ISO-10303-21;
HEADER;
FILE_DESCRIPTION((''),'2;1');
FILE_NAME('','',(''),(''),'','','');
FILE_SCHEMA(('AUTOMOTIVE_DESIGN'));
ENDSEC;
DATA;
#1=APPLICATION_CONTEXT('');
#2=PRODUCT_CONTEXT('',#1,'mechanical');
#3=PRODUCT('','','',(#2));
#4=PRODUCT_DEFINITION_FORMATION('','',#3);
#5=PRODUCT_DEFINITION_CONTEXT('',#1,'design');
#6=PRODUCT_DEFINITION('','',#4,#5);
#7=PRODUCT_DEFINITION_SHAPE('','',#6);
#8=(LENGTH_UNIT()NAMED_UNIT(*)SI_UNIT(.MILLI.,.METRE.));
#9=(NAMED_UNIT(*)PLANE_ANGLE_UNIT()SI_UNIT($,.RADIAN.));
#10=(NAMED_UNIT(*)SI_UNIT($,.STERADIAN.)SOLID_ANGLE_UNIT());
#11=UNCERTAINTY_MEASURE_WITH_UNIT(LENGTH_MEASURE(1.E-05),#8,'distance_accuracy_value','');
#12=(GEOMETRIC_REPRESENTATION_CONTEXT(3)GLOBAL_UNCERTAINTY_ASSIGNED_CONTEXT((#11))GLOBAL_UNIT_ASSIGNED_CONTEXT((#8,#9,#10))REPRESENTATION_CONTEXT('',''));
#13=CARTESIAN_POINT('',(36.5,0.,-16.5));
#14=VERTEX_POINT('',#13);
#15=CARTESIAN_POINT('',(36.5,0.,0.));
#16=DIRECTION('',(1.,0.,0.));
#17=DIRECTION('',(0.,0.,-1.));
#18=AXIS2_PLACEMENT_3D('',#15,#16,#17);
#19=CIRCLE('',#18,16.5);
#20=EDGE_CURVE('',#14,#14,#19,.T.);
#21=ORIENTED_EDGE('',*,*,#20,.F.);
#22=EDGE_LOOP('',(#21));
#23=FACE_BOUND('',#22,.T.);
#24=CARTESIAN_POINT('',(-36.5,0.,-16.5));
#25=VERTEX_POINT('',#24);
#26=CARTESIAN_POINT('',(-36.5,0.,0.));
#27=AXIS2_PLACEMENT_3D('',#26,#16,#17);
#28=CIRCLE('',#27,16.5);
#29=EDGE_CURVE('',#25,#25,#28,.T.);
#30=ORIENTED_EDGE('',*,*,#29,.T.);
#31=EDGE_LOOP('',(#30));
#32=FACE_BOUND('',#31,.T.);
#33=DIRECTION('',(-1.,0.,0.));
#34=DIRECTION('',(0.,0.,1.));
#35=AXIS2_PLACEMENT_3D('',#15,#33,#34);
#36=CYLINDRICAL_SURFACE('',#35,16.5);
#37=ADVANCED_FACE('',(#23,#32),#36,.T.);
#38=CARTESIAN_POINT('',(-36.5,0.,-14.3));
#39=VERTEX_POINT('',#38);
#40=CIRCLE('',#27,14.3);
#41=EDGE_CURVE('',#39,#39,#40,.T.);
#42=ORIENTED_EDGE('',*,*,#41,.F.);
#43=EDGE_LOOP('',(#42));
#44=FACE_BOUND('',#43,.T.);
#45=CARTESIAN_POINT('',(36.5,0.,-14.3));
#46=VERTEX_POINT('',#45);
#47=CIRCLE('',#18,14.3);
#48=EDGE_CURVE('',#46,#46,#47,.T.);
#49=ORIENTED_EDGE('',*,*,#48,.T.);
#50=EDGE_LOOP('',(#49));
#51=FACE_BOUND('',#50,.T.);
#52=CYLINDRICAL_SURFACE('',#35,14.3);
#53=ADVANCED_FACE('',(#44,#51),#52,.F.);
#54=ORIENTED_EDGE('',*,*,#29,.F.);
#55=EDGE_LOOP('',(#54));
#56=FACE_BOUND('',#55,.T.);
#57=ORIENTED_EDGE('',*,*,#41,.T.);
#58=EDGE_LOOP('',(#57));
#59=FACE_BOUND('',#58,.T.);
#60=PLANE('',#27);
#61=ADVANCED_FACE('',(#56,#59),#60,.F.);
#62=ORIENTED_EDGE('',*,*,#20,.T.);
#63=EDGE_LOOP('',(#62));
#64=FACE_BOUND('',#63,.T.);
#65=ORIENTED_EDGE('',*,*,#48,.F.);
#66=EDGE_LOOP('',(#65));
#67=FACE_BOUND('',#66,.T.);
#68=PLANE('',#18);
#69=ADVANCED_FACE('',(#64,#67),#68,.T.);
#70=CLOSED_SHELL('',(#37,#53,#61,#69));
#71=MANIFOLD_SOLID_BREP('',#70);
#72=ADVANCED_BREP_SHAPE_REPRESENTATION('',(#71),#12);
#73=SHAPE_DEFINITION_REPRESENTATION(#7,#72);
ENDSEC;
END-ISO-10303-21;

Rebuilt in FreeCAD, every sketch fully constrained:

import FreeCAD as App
import Part
import Sketcher
from FreeCAD import Vector
Q = App.Units.Quantity

doc = App.newDocument("Part")
params = doc.addObject("Spreadsheet::Sheet", "Params")
for row, (alias, value) in enumerate([
    ("sketch1_diameter", "33 mm"),
    ("sketch1_diameter2", "28.6 mm"),
    ("pad1_length", "73 mm"),
], start=1):
    params.set(f"A{row}", alias)
    params.set(f"B{row}", "=" + value)
    params.setAlias(f"B{row}", alias)

body = doc.addObject("PartDesign::Body", "Body")

# Sketch on YZ plane
sketch1 = doc.addObject("Sketcher::SketchObject", "Sketch")
body.addObject(sketch1)
sketch1.AttachmentSupport = (doc.YZ_Plane, [""])
sketch1.MapMode = "FlatFace"
sketch1.addGeometry([
    Part.Circle(Vector(0, 0, 0), Vector(0, 0, 1), 16),
    Part.Circle(Vector(0, 0, 0), Vector(0, 0, 1), 14),
], False)
sketch1.addConstraint([
    Sketcher.Constraint("Coincident", 0, 3, -1, 1),
    Sketcher.Constraint("Coincident", 1, 3, -1, 1),
    Sketcher.Constraint("Diameter", 0, Q("33 mm")),
    Sketcher.Constraint("Diameter", 1, Q("28.6 mm")),
])
sketch1.setExpression("Constraints[2]", "Params.sketch1_diameter")
sketch1.setExpression("Constraints[3]", "Params.sketch1_diameter2")
pad1 = doc.addObject("PartDesign::Pad", "Pad")
body.addObject(pad1)
pad1.Profile = sketch1
pad1.setExpression("Length", "Params.pad1_length")
pad1.Midplane = True

doc.recompute()
